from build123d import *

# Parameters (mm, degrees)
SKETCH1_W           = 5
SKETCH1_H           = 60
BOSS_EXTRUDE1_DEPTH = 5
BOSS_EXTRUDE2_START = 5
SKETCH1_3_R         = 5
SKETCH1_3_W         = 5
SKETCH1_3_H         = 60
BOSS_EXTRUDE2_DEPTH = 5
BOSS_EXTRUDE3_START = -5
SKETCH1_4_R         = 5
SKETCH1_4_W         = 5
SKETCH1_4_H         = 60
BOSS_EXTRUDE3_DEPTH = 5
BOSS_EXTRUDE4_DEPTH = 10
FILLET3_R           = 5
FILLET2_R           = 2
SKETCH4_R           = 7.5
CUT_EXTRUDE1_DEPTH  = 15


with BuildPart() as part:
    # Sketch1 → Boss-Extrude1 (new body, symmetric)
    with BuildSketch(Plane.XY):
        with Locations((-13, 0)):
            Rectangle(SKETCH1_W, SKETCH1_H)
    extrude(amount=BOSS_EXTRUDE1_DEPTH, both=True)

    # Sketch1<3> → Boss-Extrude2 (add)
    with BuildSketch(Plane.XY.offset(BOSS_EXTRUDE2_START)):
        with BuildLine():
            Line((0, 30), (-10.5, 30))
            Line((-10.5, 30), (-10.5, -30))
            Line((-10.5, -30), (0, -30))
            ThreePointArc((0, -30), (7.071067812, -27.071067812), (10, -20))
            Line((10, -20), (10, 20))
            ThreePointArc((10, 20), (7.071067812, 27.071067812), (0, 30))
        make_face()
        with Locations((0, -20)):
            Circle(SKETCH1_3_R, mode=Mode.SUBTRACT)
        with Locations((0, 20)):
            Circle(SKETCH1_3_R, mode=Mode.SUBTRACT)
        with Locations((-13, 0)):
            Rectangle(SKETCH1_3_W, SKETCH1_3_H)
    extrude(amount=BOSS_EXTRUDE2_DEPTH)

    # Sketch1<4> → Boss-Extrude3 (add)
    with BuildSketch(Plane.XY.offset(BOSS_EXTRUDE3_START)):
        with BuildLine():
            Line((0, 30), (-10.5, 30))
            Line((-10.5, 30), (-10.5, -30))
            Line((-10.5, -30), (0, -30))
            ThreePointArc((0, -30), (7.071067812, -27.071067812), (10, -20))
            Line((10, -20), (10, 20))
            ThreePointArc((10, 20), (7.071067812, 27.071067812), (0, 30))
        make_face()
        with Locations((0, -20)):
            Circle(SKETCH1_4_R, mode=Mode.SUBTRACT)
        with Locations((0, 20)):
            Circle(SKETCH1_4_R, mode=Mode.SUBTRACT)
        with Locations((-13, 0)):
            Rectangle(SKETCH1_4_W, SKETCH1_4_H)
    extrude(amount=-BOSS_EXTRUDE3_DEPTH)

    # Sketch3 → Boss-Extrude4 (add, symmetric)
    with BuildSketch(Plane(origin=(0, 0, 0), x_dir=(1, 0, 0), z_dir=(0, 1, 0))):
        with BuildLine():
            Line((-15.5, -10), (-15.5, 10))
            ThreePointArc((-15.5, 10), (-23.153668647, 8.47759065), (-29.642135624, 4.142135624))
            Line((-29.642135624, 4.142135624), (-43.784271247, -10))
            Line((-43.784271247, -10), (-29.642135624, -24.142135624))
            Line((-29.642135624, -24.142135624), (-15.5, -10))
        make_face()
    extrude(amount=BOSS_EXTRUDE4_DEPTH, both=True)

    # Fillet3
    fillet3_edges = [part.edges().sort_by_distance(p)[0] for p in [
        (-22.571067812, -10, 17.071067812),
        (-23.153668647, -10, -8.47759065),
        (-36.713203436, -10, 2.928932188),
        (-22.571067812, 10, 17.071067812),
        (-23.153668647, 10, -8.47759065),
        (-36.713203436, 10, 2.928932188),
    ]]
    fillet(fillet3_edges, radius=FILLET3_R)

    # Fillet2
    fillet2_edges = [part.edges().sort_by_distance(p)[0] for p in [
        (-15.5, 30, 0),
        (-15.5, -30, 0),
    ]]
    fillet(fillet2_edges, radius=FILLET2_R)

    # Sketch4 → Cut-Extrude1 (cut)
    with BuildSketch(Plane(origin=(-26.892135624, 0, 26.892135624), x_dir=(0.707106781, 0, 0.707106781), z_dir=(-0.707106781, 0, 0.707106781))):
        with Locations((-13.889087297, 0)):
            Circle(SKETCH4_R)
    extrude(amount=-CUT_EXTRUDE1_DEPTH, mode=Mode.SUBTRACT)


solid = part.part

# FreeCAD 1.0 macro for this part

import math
import FreeCAD as App
import Part
import Sketcher

V = App.Vector


def edges_at(feature, points):
    """Names of the edges that pass closest to the given points."""
    edges = feature.Shape.Edges
    near = lambda p: min(range(len(edges)), key=lambda i: edges[i].distToShape(Part.Vertex(*p))[0])
    return sorted({f"Edge{near(p) + 1}" for p in points})


def add_polygon(sketch, points):
    """Adds a closed chain of lines whose ends are joined by coincident constraints."""
    first, n = sketch.GeometryCount, len(points)
    for a, b in zip(points, points[1:] + points[:1]):
        sketch.addGeometry(Part.LineSegment(App.Vector(*a, 0), App.Vector(*b, 0)), False)
    for i in range(n):
        sketch.addConstraint(Sketcher.Constraint("Coincident", first + i, 2, first + (i + 1) % n, 1))

doc = App.newDocument("Part")
params = doc.addObject("Spreadsheet::Sheet", "Params")
for row, (alias, value) in enumerate([
    ("sketch1_width", "5 mm"),
    ("sketch1_height", "60 mm"),
    ("pad1_length", "10 mm"),
    ("sketch2_diameter", "10 mm"),
    ("sketch2_radius", "10 mm"),
    ("sketch2_height", "60 mm"),
    ("sketch2_width", "15.5 mm"),
    ("pad2_length", "5 mm"),
    ("sketch3_diameter", "10 mm"),
    ("sketch3_radius", "10 mm"),
    ("sketch3_height", "60 mm"),
    ("sketch3_width", "15.5 mm"),
    ("pad3_length", "5 mm"),
    ("sketch4_radius", "20 mm"),
    ("pad4_length", "20 mm"),
    ("fillet_radius", "5 mm"),
    ("fillet2_radius", "2 mm"),
    ("sketch5_diameter", "15 mm"),
    ("pocket1_length", "15 mm"),
], start=1):
    params.set(f"A{row}", alias)
    params.set(f"B{row}", "=" + value)
    params.setAlias(f"B{row}", alias)

body = doc.addObject("PartDesign::Body", "Body")

sketch1 = body.newObject("Sketcher::SketchObject", "Sketch")
sketch1.AttachmentSupport = (doc.getObject("XY_Plane"), [""])
sketch1.MapMode = "FlatFace"
add_polygon(sketch1, [(-15.5, 30), (-15.5, -30), (-10.5, -30), (-10.5, 30)])
sketch1.addConstraint([
    Sketcher.Constraint("Vertical", 0),
    Sketcher.Constraint("Horizontal", 1),
    Sketcher.Constraint("Vertical", 2),
    Sketcher.Constraint("Horizontal", 3),
    Sketcher.Constraint("DistanceX", 1, 1, 1, 2, 5.0),
    Sketcher.Constraint("DistanceY", 0, 2, 0, 1, 60.0),
    Sketcher.Constraint("DistanceY", 0, 2, -1, 1, 30.0),
    Sketcher.Constraint("DistanceX", 0, 2, -1, 1, 15.5),
])
sketch1.setExpression("Constraints[8]", "Params.sketch1_width")
sketch1.setExpression("Constraints[9]", "Params.sketch1_height")
pad1 = body.newObject("PartDesign::Pad", "Pad")
pad1.Profile = sketch1
pad1.setExpression("Length", "Params.pad1_length")
pad1.Midplane = True

sketch2 = body.newObject("Sketcher::SketchObject", "Sketch001")
sketch2.AttachmentSupport = (doc.getObject("XY_Plane"), [""])
sketch2.MapMode = "FlatFace"
sketch2.AttachmentOffset = App.Placement(V(0, 0, 5), App.Rotation())
sketch2.addGeometry([
    Part.LineSegment(V(0, 30, 0), V(-15.5, 30, 0)),
    Part.LineSegment(V(-15.5, 30, 0), V(-15.5, -30, 0)),
    Part.LineSegment(V(-15.5, -30, 0), V(0, -30, 0)),
    Part.ArcOfCircle(Part.Circle(V(0, -20, 0), V(0, 0, 1), 10), math.radians(-90), math.radians(0)),
    Part.LineSegment(V(10, -20, 0), V(10, 20, 0)),
    Part.ArcOfCircle(Part.Circle(V(0, 20, 0), V(0, 0, 1), 10), math.radians(0), math.radians(90)),
    Part.Circle(V(0, -20, 0), V(0, 0, 1), 5),
    Part.Circle(V(0, 20, 0), V(0, 0, 1), 5),
], False)
sketch2.addConstraint([
    Sketcher.Constraint("Coincident", 0, 2, 1, 1),
    Sketcher.Constraint("Coincident", 1, 2, 2, 1),
    Sketcher.Constraint("Tangent", 2, 2, 3, 1),
    Sketcher.Constraint("Tangent", 3, 2, 4, 1),
    Sketcher.Constraint("Tangent", 4, 2, 5, 1),
    Sketcher.Constraint("Tangent", 5, 2, 0, 1),
    Sketcher.Constraint("Horizontal", 0),
    Sketcher.Constraint("Vertical", 1),
    Sketcher.Constraint("Horizontal", 2),
    Sketcher.Constraint("Vertical", 4),
    Sketcher.Constraint("Coincident", 6, 3, 3, 3),
    Sketcher.Constraint("Coincident", 7, 3, 5, 3),
    Sketcher.Constraint("Equal", 3, 5),
    Sketcher.Constraint("Equal", 6, 7),
    Sketcher.Constraint("Symmetric", 3, 3, 5, 3, -1, 1),
    Sketcher.Constraint("Diameter", 6, 10.0),
    Sketcher.Constraint("Radius", 3, 10.0),
    Sketcher.Constraint("DistanceY", 1, 2, 1, 1, 60.0),
    Sketcher.Constraint("DistanceX", 0, 2, 0, 1, 15.5),
])
sketch2.setExpression("Constraints[15]", "Params.sketch2_diameter")
sketch2.setExpression("Constraints[16]", "Params.sketch2_radius")
sketch2.setExpression("Constraints[17]", "Params.sketch2_height")
sketch2.setExpression("Constraints[18]", "Params.sketch2_width")
pad2 = body.newObject("PartDesign::Pad", "Pad001")
pad2.Profile = sketch2
pad2.setExpression("Length", "Params.pad2_length")

sketch3 = body.newObject("Sketcher::SketchObject", "Sketch002")
sketch3.AttachmentSupport = (doc.getObject("XY_Plane"), [""])
sketch3.MapMode = "FlatFace"
sketch3.AttachmentOffset = App.Placement(V(0, 0, -5), App.Rotation())
sketch3.addGeometry([
    Part.LineSegment(V(0, 30, 0), V(-15.5, 30, 0)),
    Part.LineSegment(V(-15.5, 30, 0), V(-15.5, -30, 0)),
    Part.LineSegment(V(-15.5, -30, 0), V(0, -30, 0)),
    Part.ArcOfCircle(Part.Circle(V(0, -20, 0), V(0, 0, 1), 10), math.radians(-90), math.radians(0)),
    Part.LineSegment(V(10, -20, 0), V(10, 20, 0)),
    Part.ArcOfCircle(Part.Circle(V(0, 20, 0), V(0, 0, 1), 10), math.radians(0), math.radians(90)),
    Part.Circle(V(0, -20, 0), V(0, 0, 1), 5),
    Part.Circle(V(0, 20, 0), V(0, 0, 1), 5),
], False)
sketch3.addConstraint([
    Sketcher.Constraint("Coincident", 0, 2, 1, 1),
    Sketcher.Constraint("Coincident", 1, 2, 2, 1),
    Sketcher.Constraint("Tangent", 2, 2, 3, 1),
    Sketcher.Constraint("Tangent", 3, 2, 4, 1),
    Sketcher.Constraint("Tangent", 4, 2, 5, 1),
    Sketcher.Constraint("Tangent", 5, 2, 0, 1),
    Sketcher.Constraint("Horizontal", 0),
    Sketcher.Constraint("Vertical", 1),
    Sketcher.Constraint("Horizontal", 2),
    Sketcher.Constraint("Vertical", 4),
    Sketcher.Constraint("Coincident", 6, 3, 3, 3),
    Sketcher.Constraint("Coincident", 7, 3, 5, 3),
    Sketcher.Constraint("Equal", 3, 5),
    Sketcher.Constraint("Equal", 6, 7),
    Sketcher.Constraint("Symmetric", 3, 3, 5, 3, -1, 1),
    Sketcher.Constraint("Diameter", 6, 10.0),
    Sketcher.Constraint("Radius", 3, 10.0),
    Sketcher.Constraint("DistanceY", 1, 2, 1, 1, 60.0),
    Sketcher.Constraint("DistanceX", 0, 2, 0, 1, 15.5),
])
sketch3.setExpression("Constraints[15]", "Params.sketch3_diameter")
sketch3.setExpression("Constraints[16]", "Params.sketch3_radius")
sketch3.setExpression("Constraints[17]", "Params.sketch3_height")
sketch3.setExpression("Constraints[18]", "Params.sketch3_width")
pad3 = body.newObject("PartDesign::Pad", "Pad002")
pad3.Profile = sketch3
pad3.setExpression("Length", "Params.pad3_length")
pad3.Reversed = True

sketch4 = body.newObject("Sketcher::SketchObject", "Sketch003")
sketch4.AttachmentSupport = (doc.getObject("XZ_Plane"), [""])
sketch4.MapMode = "FlatFace"
sketch4.addGeometry([
    Part.LineSegment(V(-15.5, 10, 0), V(-15.5, -10, 0)),
    Part.ArcOfCircle(Part.Circle(V(-15.5, 10, 0), V(0, 0, 1), 20), math.radians(-135), math.radians(-90)),
    Part.LineSegment(V(-29.642136, -4.142136, 0), V(-43.784271, 10, 0)),
    Part.LineSegment(V(-43.784271, 10, 0), V(-29.642136, 24.142136, 0)),
    Part.LineSegment(V(-29.642136, 24.142136, 0), V(-15.5, 10, 0)),
], False)
sketch4.addConstraint([
    Sketcher.Constraint("Coincident", 0, 2, 1, 2),
    Sketcher.Constraint("Tangent", 1, 1, 2, 1),
    Sketcher.Constraint("Coincident", 2, 2, 3, 1),
    Sketcher.Constraint("Coincident", 3, 2, 4, 1),
    Sketcher.Constraint("Coincident", 4, 2, 0, 1),
    Sketcher.Constraint("Vertical", 0),
    Sketcher.Constraint("Coincident", 4, 2, 1, 3),
    Sketcher.Constraint("Perpendicular", 2, 3),
    Sketcher.Constraint("Perpendicular", 3, 4),
    Sketcher.Constraint("Horizontal", 1, 3, 2, 2),
    Sketcher.Constraint("Vertical", 1, 1, 3, 2),
    Sketcher.Constraint("Radius", 1, 20.0),
    Sketcher.Constraint("DistanceY", -1, 1, 1, 3, 10.0),
    Sketcher.Constraint("DistanceX", 1, 3, -1, 1, 15.5),
])
sketch4.setExpression("Constraints[11]", "Params.sketch4_radius")
pad4 = body.newObject("PartDesign::Pad", "Pad003")
pad4.Profile = sketch4
pad4.setExpression("Length", "Params.pad4_length")
pad4.Midplane = True
doc.recompute()

fillet = body.newObject("PartDesign::Fillet", "Fillet")
fillet.Base = (pad4, edges_at(pad4, [
    (-22.571, -10, 17.071),
    (-23.154, -10, -8.478),
    (-36.713, -10, 2.929),
    (-22.571, 10, 17.071),
    (-23.154, 10, -8.478),
    (-36.713, 10, 2.929),
]))
fillet.setExpression("Radius", "Params.fillet_radius")
doc.recompute()

fillet2 = body.newObject("PartDesign::Fillet", "Fillet001")
fillet2.Base = (fillet, edges_at(fillet, [(-15.5, 30, 0), (-15.5, -30, 0)]))
fillet2.setExpression("Radius", "Params.fillet2_radius")

sketch5 = body.newObject("Sketcher::SketchObject", "Sketch004")
sketch5.Placement = App.Placement(V(-26.892136, 0, 26.892136), App.Rotation(V(0.707106781, 0, 0.707106781), V(0, 0.999999999, 0), V(-0.707106781, 0, 0.707106781), "ZXY"))
sketch5.addGeometry(Part.Circle(V(-13.889087, 0, 0), V(0, 0, 1), 7.5), False)
sketch5.addConstraint([
    Sketcher.Constraint("PointOnObject", 0, 3, -1),
    Sketcher.Constraint("Diameter", 0, 15.0),
    Sketcher.Constraint("DistanceX", 0, 3, -1, 1, 13.889087),
])
sketch5.setExpression("Constraints[1]", "Params.sketch5_diameter")
pocket1 = body.newObject("PartDesign::Pocket", "Pocket")
pocket1.Profile = sketch5
pocket1.setExpression("Length", "Params.pocket1_length")

doc.recompute()
